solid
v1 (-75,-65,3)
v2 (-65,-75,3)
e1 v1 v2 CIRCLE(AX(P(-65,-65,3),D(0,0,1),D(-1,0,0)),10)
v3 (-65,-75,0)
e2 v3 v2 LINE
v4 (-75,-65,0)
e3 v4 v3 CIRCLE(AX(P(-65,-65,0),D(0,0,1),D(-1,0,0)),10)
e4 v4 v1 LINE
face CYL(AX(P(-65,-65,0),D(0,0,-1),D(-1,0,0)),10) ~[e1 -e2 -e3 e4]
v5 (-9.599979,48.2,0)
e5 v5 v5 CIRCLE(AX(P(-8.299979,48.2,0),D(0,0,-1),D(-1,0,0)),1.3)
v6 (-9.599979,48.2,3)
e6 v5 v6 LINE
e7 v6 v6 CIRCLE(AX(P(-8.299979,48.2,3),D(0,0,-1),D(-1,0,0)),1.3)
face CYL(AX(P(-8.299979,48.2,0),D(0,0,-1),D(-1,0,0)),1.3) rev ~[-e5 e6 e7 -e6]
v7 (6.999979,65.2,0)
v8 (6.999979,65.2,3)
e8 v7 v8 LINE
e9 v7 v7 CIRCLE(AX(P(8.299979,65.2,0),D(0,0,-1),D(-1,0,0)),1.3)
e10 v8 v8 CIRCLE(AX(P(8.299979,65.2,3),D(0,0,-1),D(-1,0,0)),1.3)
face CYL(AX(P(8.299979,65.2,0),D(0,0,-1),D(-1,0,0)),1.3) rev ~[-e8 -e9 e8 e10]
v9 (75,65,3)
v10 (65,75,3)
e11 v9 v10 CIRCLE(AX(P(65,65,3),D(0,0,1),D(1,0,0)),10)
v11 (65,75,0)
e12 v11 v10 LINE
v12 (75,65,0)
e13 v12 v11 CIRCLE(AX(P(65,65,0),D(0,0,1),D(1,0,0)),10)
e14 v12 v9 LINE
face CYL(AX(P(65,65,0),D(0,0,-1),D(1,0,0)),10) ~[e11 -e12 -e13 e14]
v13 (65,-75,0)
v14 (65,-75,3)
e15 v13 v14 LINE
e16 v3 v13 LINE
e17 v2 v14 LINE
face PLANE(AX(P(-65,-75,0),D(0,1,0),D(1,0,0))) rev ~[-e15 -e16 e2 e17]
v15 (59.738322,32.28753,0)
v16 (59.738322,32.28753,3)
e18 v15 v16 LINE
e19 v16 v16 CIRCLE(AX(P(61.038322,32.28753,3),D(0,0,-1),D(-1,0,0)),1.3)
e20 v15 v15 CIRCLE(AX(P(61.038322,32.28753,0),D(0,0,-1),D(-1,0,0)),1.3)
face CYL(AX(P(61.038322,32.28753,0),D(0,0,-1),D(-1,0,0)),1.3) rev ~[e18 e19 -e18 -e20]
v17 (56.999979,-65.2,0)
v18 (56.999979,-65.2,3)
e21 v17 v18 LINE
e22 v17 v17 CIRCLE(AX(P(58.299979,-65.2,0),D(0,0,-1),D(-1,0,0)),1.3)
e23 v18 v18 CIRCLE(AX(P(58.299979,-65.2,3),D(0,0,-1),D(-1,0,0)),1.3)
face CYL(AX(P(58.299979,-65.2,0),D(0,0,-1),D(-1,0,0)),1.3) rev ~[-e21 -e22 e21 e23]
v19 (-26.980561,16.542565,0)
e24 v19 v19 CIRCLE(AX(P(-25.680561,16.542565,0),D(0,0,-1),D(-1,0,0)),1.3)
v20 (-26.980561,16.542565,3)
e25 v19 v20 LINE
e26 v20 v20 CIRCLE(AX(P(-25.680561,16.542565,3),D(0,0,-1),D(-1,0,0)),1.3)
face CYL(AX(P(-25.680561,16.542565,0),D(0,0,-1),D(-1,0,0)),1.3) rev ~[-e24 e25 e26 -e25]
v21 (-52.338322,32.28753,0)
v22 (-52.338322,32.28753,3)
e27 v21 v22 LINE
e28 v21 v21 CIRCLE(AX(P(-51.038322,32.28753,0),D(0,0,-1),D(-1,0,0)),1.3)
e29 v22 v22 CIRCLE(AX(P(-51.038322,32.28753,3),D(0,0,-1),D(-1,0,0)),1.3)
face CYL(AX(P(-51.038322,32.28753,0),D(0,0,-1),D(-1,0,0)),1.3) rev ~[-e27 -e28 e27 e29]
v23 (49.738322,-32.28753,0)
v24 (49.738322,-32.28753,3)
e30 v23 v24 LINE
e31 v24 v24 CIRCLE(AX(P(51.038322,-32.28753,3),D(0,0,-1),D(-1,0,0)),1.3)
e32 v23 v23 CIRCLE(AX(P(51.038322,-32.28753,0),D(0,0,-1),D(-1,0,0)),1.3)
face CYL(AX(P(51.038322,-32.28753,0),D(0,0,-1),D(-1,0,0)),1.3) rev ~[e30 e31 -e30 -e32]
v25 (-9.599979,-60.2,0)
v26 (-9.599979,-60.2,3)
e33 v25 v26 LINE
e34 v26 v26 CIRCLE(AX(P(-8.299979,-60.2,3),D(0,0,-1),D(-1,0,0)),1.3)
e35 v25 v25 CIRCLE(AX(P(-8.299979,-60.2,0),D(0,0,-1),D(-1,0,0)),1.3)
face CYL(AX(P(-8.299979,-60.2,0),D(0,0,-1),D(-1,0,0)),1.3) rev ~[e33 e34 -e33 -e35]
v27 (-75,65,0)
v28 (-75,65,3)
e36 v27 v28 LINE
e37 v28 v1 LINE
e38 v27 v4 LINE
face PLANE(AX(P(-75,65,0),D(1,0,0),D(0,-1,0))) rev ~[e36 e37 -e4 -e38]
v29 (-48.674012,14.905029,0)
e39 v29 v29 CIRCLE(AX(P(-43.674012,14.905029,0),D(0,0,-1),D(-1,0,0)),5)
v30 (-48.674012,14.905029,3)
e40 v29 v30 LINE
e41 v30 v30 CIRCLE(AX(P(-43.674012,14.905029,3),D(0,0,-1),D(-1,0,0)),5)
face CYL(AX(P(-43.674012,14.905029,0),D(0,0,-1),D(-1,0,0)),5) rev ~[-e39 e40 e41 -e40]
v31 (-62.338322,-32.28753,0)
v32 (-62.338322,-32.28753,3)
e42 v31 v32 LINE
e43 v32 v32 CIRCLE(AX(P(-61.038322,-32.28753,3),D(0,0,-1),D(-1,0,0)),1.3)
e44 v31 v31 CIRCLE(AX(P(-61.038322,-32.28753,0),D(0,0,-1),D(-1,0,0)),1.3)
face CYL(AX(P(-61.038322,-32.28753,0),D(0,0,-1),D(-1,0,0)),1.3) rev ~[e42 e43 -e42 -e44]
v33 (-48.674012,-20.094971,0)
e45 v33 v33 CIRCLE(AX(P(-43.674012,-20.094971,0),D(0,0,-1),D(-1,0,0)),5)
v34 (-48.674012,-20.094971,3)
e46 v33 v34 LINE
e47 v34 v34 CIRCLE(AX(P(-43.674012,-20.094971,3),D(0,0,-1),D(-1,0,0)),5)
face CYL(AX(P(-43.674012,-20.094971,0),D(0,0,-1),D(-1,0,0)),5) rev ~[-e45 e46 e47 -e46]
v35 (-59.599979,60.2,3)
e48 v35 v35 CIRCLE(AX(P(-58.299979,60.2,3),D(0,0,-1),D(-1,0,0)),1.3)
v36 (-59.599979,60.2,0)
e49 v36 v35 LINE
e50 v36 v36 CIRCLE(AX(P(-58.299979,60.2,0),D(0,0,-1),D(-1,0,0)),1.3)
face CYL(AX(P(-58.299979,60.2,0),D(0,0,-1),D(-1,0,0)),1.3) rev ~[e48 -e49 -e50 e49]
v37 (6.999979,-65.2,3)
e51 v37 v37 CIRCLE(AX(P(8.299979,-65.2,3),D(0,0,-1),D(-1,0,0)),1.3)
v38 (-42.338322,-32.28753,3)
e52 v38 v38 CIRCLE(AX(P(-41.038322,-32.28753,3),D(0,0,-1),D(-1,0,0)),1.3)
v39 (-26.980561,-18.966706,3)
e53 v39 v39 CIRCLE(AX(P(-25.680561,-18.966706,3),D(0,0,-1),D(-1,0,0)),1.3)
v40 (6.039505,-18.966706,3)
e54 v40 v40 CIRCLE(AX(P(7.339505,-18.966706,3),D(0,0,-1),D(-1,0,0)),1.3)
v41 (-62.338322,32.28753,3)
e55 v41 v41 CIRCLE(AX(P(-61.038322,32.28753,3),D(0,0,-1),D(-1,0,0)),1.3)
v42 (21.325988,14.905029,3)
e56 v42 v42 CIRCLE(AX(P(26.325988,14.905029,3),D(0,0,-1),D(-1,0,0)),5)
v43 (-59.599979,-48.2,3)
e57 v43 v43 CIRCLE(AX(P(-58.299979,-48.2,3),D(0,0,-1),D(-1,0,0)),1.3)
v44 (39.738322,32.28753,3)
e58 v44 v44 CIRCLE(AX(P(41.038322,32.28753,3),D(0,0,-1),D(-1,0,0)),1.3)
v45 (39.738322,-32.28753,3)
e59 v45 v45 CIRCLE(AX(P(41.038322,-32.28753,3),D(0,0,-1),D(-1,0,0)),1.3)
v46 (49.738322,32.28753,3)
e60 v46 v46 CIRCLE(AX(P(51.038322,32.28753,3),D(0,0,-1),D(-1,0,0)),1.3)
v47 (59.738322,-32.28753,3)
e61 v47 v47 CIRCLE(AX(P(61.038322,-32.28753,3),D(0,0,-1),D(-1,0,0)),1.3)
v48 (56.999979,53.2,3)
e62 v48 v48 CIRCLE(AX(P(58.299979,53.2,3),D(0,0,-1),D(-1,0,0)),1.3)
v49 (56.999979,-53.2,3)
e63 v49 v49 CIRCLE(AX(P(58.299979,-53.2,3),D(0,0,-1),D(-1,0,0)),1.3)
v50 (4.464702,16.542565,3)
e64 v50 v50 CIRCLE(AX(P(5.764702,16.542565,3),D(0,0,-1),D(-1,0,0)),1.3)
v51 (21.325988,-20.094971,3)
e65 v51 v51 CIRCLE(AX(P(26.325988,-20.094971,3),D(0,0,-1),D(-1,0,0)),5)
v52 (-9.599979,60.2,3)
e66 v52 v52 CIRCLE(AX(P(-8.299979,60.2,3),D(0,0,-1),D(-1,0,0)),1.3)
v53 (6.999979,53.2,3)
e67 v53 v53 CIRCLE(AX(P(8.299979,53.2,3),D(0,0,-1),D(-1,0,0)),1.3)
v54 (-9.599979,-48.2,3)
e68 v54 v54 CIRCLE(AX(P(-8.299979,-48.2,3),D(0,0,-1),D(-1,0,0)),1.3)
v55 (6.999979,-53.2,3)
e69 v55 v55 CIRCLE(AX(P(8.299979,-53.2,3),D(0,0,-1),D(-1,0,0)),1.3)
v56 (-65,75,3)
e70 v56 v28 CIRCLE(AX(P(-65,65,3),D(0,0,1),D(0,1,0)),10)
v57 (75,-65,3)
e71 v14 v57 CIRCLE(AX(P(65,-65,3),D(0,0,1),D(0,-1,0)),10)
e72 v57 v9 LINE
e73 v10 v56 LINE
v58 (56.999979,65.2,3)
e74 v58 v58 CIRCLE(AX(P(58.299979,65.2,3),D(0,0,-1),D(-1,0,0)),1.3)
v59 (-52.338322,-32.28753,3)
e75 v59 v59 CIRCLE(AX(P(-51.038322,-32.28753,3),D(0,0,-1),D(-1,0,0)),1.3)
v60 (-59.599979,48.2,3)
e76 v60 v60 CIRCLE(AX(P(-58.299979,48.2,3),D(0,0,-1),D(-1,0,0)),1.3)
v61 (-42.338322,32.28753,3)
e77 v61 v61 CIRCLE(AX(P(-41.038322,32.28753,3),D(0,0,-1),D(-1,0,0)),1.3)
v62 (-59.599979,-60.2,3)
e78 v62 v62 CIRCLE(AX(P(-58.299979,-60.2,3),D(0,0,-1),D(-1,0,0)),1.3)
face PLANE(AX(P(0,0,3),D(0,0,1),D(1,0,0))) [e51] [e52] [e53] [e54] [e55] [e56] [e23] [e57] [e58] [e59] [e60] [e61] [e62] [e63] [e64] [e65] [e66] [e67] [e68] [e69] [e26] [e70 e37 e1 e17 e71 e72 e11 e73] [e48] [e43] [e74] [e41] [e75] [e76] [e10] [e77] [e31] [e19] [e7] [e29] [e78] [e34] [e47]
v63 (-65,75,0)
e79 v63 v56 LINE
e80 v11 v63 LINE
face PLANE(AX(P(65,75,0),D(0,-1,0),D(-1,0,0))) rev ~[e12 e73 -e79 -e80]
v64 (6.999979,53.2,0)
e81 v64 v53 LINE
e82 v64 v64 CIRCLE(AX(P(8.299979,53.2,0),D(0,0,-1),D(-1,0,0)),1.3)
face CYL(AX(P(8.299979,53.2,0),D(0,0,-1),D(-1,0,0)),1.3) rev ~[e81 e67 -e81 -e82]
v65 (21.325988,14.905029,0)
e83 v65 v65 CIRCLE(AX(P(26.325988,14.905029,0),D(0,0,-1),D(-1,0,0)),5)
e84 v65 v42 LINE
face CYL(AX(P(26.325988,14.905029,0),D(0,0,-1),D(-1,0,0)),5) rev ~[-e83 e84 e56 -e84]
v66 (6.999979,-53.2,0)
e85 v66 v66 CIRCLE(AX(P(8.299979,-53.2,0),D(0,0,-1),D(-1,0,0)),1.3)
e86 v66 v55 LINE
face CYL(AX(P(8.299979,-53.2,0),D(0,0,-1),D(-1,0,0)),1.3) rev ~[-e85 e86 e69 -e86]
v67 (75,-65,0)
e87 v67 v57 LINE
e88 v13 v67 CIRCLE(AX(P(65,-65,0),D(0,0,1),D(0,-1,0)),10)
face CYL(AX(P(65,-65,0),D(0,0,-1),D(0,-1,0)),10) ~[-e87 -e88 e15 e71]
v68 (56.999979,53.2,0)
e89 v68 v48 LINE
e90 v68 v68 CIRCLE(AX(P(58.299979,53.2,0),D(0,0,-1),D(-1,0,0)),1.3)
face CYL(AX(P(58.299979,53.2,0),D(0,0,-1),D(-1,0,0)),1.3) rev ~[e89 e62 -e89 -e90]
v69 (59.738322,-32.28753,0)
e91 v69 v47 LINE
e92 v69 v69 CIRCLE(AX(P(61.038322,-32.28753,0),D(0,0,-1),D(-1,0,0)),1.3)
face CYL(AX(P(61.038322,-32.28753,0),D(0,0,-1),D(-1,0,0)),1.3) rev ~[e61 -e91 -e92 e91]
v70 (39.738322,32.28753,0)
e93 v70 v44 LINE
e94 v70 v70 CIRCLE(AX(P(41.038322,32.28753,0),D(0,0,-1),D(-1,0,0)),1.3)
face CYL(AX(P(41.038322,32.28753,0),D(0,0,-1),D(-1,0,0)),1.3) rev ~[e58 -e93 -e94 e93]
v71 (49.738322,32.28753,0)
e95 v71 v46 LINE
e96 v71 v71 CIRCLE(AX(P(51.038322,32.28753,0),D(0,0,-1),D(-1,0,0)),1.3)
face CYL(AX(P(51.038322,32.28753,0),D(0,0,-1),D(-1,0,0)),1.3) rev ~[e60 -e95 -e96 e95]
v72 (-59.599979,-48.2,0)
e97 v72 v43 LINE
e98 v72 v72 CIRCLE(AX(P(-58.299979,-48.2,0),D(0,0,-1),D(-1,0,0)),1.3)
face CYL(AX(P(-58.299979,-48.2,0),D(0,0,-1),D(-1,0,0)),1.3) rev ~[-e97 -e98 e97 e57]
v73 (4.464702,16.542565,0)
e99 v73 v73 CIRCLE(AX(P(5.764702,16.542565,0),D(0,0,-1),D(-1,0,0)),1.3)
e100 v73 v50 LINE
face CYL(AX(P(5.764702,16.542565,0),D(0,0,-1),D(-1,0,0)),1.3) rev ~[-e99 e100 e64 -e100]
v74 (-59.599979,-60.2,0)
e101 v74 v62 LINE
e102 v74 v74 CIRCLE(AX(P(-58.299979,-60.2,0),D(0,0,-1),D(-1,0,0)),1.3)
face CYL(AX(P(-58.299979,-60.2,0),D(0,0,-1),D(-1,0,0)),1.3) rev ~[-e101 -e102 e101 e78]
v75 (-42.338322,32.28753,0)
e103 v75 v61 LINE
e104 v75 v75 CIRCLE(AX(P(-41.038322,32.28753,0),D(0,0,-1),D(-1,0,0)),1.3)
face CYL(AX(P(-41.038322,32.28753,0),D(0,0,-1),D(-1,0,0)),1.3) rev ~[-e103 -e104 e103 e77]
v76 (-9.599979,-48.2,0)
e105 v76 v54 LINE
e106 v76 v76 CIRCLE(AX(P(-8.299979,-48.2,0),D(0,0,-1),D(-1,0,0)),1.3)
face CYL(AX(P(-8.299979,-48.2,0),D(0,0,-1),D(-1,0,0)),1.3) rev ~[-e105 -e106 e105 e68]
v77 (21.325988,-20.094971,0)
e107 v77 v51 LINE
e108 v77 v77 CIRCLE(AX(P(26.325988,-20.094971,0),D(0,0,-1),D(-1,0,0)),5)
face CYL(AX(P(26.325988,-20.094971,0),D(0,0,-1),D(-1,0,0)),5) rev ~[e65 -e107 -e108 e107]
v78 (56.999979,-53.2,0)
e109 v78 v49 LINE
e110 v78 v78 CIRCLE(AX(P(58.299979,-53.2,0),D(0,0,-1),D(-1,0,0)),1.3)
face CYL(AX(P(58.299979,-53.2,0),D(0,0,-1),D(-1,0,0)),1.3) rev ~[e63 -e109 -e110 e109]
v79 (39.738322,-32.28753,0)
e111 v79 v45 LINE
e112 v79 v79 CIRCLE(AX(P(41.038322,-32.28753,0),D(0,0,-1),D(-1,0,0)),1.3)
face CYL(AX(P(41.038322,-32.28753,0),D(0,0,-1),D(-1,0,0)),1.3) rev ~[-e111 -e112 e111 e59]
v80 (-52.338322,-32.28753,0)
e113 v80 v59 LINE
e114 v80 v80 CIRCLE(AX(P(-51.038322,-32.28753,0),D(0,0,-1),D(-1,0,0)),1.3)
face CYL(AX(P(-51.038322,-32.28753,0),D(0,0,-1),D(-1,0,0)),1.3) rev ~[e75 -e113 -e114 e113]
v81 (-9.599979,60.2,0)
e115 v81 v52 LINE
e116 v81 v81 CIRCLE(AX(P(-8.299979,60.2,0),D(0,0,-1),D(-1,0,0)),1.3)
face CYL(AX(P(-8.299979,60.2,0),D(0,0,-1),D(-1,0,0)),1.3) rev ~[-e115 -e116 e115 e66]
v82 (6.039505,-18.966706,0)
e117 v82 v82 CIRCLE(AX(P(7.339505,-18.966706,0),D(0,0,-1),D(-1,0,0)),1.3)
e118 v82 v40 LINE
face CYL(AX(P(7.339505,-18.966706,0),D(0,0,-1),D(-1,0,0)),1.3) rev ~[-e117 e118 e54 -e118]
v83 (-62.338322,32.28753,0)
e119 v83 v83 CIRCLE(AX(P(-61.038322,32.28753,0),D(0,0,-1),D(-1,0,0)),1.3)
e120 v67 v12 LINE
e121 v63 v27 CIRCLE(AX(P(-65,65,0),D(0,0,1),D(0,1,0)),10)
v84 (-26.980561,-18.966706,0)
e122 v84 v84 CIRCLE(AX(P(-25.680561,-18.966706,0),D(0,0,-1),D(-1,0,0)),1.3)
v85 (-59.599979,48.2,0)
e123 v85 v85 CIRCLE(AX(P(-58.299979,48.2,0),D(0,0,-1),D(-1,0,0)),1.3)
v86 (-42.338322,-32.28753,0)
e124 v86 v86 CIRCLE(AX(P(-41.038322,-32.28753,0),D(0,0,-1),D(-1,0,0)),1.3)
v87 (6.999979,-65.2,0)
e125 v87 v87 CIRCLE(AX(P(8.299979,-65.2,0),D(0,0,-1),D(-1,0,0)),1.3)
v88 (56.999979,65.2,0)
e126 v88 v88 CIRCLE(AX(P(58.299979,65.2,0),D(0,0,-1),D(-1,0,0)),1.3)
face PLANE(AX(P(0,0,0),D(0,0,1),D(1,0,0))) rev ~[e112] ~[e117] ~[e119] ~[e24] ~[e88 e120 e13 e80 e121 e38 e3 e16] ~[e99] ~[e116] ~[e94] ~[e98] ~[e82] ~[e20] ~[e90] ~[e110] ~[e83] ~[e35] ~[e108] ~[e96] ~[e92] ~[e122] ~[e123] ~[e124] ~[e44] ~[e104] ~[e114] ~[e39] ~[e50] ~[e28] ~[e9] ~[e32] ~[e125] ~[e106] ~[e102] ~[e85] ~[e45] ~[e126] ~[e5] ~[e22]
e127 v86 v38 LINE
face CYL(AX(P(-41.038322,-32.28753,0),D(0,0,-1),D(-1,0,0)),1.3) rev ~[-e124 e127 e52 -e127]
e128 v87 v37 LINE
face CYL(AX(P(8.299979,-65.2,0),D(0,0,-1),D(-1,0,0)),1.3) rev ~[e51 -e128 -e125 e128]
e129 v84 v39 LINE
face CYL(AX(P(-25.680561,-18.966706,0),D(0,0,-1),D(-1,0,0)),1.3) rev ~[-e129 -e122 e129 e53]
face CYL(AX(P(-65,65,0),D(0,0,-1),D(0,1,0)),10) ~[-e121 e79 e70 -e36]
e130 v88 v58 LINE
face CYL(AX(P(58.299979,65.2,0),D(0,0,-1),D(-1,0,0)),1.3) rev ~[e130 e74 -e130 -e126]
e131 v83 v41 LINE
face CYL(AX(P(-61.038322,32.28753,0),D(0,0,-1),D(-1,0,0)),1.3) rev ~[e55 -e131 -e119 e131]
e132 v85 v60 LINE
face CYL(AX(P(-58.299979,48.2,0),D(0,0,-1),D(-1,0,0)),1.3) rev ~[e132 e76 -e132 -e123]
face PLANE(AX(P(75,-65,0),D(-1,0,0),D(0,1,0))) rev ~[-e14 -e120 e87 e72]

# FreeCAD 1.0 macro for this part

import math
import FreeCAD as App
import Part
import Sketcher

V = App.Vector

doc = App.newDocument("Part")
body = doc.addObject("PartDesign::Body", "Body")

sketch1 = body.newObject("Sketcher::SketchObject", "Sketch")
sketch1.AttachmentSupport = (doc.getObject("XY_Plane"), [""])
sketch1.MapMode = "FlatFace"
sketch1.addGeometry([
    Part.LineSegment(V(-65, -75, 0), V(65, -75, 0)),
    Part.ArcOfCircle(Part.Circle(V(65, -65, 0), V(0, 0, 1), 10), math.radians(-90), math.radians(0)),
    Part.LineSegment(V(75, -65, 0), V(75, 65, 0)),
    Part.ArcOfCircle(Part.Circle(V(65, 65, 0), V(0, 0, 1), 10), math.radians(0), math.radians(90)),
    Part.LineSegment(V(65, 75, 0), V(-65, 75, 0)),
    Part.ArcOfCircle(Part.Circle(V(-65, 65, 0), V(0, 0, 1), 10), math.radians(90), math.radians(180)),
    Part.LineSegment(V(-75, 65, 0), V(-75, -65, 0)),
    Part.ArcOfCircle(Part.Circle(V(-65, -65, 0), V(0, 0, 1), 10), math.radians(180), math.radians(270)),
], False)
sketch1.addConstraint([
    Sketcher.Constraint("Tangent", 0, 2, 1, 1),
    Sketcher.Constraint("Tangent", 1, 2, 2, 1),
    Sketcher.Constraint("Tangent", 2, 2, 3, 1),
    Sketcher.Constraint("Tangent", 3, 2, 4, 1),
    Sketcher.Constraint("Tangent", 4, 2, 5, 1),
    Sketcher.Constraint("Tangent", 5, 2, 6, 1),
    Sketcher.Constraint("Tangent", 6, 2, 7, 1),
    Sketcher.Constraint("Tangent", 7, 2, 0, 1),
    Sketcher.Constraint("Horizontal", 0),
    Sketcher.Constraint("Vertical", 2),
    Sketcher.Constraint("Horizontal", 4),
    Sketcher.Constraint("Vertical", 6),
    Sketcher.Constraint("Equal", 1, 3),
    Sketcher.Constraint("Equal", 3, 5),
    Sketcher.Constraint("Equal", 5, 7),
    Sketcher.Constraint("Symmetric", 1, 3, 5, 3, -1, 1),
    Sketcher.Constraint("Equal", 4, 2),
    Sketcher.Constraint("Radius", 1, 10.0),
    Sketcher.Constraint("DistanceX", 0, 1, 0, 2, 130.0),
])
pad1 = body.newObject("PartDesign::Pad", "Pad")
pad1.Profile = sketch1
pad1.Length = 3

sketch2 = body.newObject("Sketcher::SketchObject", "Sketch001")
sketch2.AttachmentSupport = (doc.getObject("XY_Plane"), [""])
sketch2.MapMode = "FlatFace"
sketch2.addGeometry([
    Part.Circle(V(-8.299979, 60.2, 0), V(0, 0, 1), 1.3),
    Part.Circle(V(-8.299979, 48.2, 0), V(0, 0, 1), 1.3),
    Part.Circle(V(-8.299979, -48.2, 0), V(0, 0, 1), 1.3),
    Part.Circle(V(-8.299979, -60.2, 0), V(0, 0, 1), 1.3),
    Part.Circle(V(-58.299979, -48.2, 0), V(0, 0, 1), 1.3),
    Part.Circle(V(-58.299979, -60.2, 0), V(0, 0, 1), 1.3),
    Part.Circle(V(-58.299979, 60.2, 0), V(0, 0, 1), 1.3),
    Part.Circle(V(-58.299979, 48.2, 0), V(0, 0, 1), 1.3),
    Part.Circle(V(58.299979, 65.2, 0), V(0, 0, 1), 1.3),
    Part.Circle(V(58.299979, 53.2, 0), V(0, 0, 1), 1.3),
    Part.Circle(V(8.299979, 53.2, 0), V(0, 0, 1), 1.3),
    Part.Circle(V(8.299979, 65.2, 0), V(0, 0, 1), 1.3),
    Part.Circle(V(8.299979, -65.2, 0), V(0, 0, 1), 1.3),
    Part.Circle(V(8.299979, -53.2, 0), V(0, 0, 1), 1.3),
    Part.Circle(V(58.299979, -53.2, 0), V(0, 0, 1), 1.3),
    Part.Circle(V(58.299979, -65.2, 0), V(0, 0, 1), 1.3),
], False)
sketch2.addConstraint([
    Sketcher.Constraint("Equal", 0, 1),
    Sketcher.Constraint("Equal", 1, 2),
    Sketcher.Constraint("Equal", 2, 3),
    Sketcher.Constraint("Equal", 3, 4),
    Sketcher.Constraint("Equal", 4, 5),
    Sketcher.Constraint("Equal", 5, 6),
    Sketcher.Constraint("Equal", 6, 7),
    Sketcher.Constraint("Equal", 7, 8),
    Sketcher.Constraint("Equal", 8, 9),
    Sketcher.Constraint("Equal", 9, 10),
    Sketcher.Constraint("Equal", 10, 11),
    Sketcher.Constraint("Equal", 11, 12),
    Sketcher.Constraint("Equal", 12, 13),
    Sketcher.Constraint("Equal", 13, 14),
    Sketcher.Constraint("Equal", 14, 15),
    Sketcher.Constraint("Symmetric", 1, 3, 2, 3, -1),
    Sketcher.Constraint("Symmetric", 0, 3, 3, 3, -1),
    Sketcher.Constraint("Symmetric", 5, 3, 6, 3, -1),
    Sketcher.Constraint("Symmetric", 4, 3, 7, 3, -1),
    Sketcher.Constraint("Symmetric", 11, 3, 12, 3, -1),
    Sketcher.Constraint("Symmetric", 10, 3, 13, 3, -1),
    Sketcher.Constraint("Symmetric", 9, 3, 14, 3, -1),
    Sketcher.Constraint("Symmetric", 8, 3, 15, 3, -1),
    Sketcher.Constraint("Horizontal", 2, 3, 4, 3),
    Sketcher.Constraint("Horizontal", 3, 3, 5, 3),
    Sketcher.Constraint("Horizontal", 9, 3, 10, 3),
    Sketcher.Constraint("Horizontal", 8, 3, 11, 3),
    Sketcher.Constraint("Vertical", 0, 3, 1, 3),
    Sketcher.Constraint("Vertical", 4, 3, 5, 3),
    Sketcher.Constraint("Vertical", 8, 3, 9, 3),
    Sketcher.Constraint("Vertical", 10, 3, 11, 3),
    Sketcher.Constraint("Diameter", 0, 2.6),
    Sketcher.Constraint("DistanceY", 1, 3, 0, 3, 12.0),
    Sketcher.Constraint("DistanceX", 4, 3, 2, 3, 50.0),
    Sketcher.Constraint("DistanceY", 0, 3, 8, 3, 5.0),
    Sketcher.Constraint("DistanceY", 9, 3, 8, 3, 12.0),
    Sketcher.Constraint("DistanceX", 10, 3, 9, 3, 50.0),
    Sketcher.Constraint("DistanceY", -1, 1, 0, 3, 60.2),
    Sketcher.Constraint("DistanceX", 0, 3, -1, 1, 8.299979),
    Sketcher.Constraint("DistanceX", -1, 1, 8, 3, 58.299979),
])
pocket1 = body.newObject("PartDesign::Pocket", "Pocket")
pocket1.Profile = sketch2
pocket1.Length = 3
pocket1.Reversed = True

sketch3 = body.newObject("Sketcher::SketchObject", "Sketch002")
sketch3.AttachmentSupport = (doc.getObject("XY_Plane"), [""])
sketch3.MapMode = "FlatFace"
sketch3.addGeometry(Part.Circle(V(5.764702, 16.542565, 0), V(0, 0, 1), 1.3), False)
sketch3.addConstraint([
    Sketcher.Constraint("Diameter", 0, 2.6),
    Sketcher.Constraint("DistanceX", -1, 1, 0, 3, 5.764702),
    Sketcher.Constraint("DistanceY", -1, 1, 0, 3, 16.542565),
])
pocket2 = body.newObject("PartDesign::Pocket", "Pocket001")
pocket2.Profile = sketch3
pocket2.Type = "UpToFirst"
pocket2.Reversed = True

sketch4 = body.newObject("Sketcher::SketchObject", "Sketch003")
sketch4.AttachmentSupport = (doc.getObject("XY_Plane"), [""])
sketch4.MapMode = "FlatFace"
sketch4.addGeometry(Part.Circle(V(-25.680561, 16.542565, 0), V(0, 0, 1), 1.3), False)
sketch4.addConstraint([
    Sketcher.Constraint("Diameter", 0, 2.6),
    Sketcher.Constraint("DistanceX", 0, 3, -1, 1, 25.680561),
    Sketcher.Constraint("DistanceY", -1, 1, 0, 3, 16.542565),
])
pocket3 = body.newObject("PartDesign::Pocket", "Pocket002")
pocket3.Profile = sketch4
pocket3.Type = "UpToFirst"
pocket3.Reversed = True

sketch5 = body.newObject("Sketcher::SketchObject", "Sketch004")
sketch5.AttachmentSupport = (doc.getObject("XY_Plane"), [""])
sketch5.MapMode = "FlatFace"
sketch5.addGeometry(Part.Circle(V(-25.680561, -18.966706, 0), V(0, 0, 1), 1.3), False)
sketch5.addConstraint([
    Sketcher.Constraint("Diameter", 0, 2.6),
    Sketcher.Constraint("DistanceX", 0, 3, -1, 1, 25.680561),
    Sketcher.Constraint("DistanceY", 0, 3, -1, 1, 18.966706),
])
pocket4 = body.newObject("PartDesign::Pocket", "Pocket003")
pocket4.Profile = sketch5
pocket4.Type = "UpToFirst"
pocket4.Reversed = True

sketch6 = body.newObject("Sketcher::SketchObject", "Sketch005")
sketch6.AttachmentSupport = (doc.getObject("XY_Plane"), [""])
sketch6.MapMode = "FlatFace"
sketch6.addGeometry(Part.Circle(V(7.339505, -18.966706, 0), V(0, 0, 1), 1.3), False)
sketch6.addConstraint([
    Sketcher.Constraint("Diameter", 0, 2.6),
    Sketcher.Constraint("DistanceX", -1, 1, 0, 3, 7.339505),
    Sketcher.Constraint("DistanceY", 0, 3, -1, 1, 18.966706),
])
pocket5 = body.newObject("PartDesign::Pocket", "Pocket004")
pocket5.Profile = sketch6
pocket5.Type = "UpToFirst"
pocket5.Reversed = True

sketch7 = body.newObject("Sketcher::SketchObject", "Sketch006")
sketch7.AttachmentSupport = (doc.getObject("XY_Plane"), [""])
sketch7.MapMode = "FlatFace"
sketch7.addGeometry(Part.Circle(V(-43.674012, 14.905029, 0), V(0, 0, 1), 5), False)
sketch7.addConstraint([
    Sketcher.Constraint("Diameter", 0, 10.0),
    Sketcher.Constraint("DistanceX", 0, 3, -1, 1, 43.674012),
    Sketcher.Constraint("DistanceY", -1, 1, 0, 3, 14.905029),
])
pocket6 = body.newObject("PartDesign::Pocket", "Pocket005")
pocket6.Profile = sketch7
pocket6.Type = "UpToFirst"
pocket6.Reversed = True

sketch8 = body.newObject("Sketcher::SketchObject", "Sketch007")
sketch8.AttachmentSupport = (doc.getObject("XY_Plane"), [""])
sketch8.MapMode = "FlatFace"
sketch8.addGeometry(Part.Circle(V(-43.674012, -20.094971, 0), V(0, 0, 1), 5), False)
sketch8.addConstraint([
    Sketcher.Constraint("Diameter", 0, 10.0),
    Sketcher.Constraint("DistanceX", 0, 3, -1, 1, 43.674012),
    Sketcher.Constraint("DistanceY", 0, 3, -1, 1, 20.094971),
])
pocket7 = body.newObject("PartDesign::Pocket", "Pocket006")
pocket7.Profile = sketch8
pocket7.Type = "UpToFirst"
pocket7.Reversed = True

sketch9 = body.newObject("Sketcher::SketchObject", "Sketch008")
sketch9.AttachmentSupport = (doc.getObject("XY_Plane"), [""])
sketch9.MapMode = "FlatFace"
sketch9.addGeometry(Part.Circle(V(26.325988, 14.905029, 0), V(0, 0, 1), 5), False)
sketch9.addConstraint([
    Sketcher.Constraint("Diameter", 0, 10.0),
    Sketcher.Constraint("DistanceX", -1, 1, 0, 3, 26.325988),
    Sketcher.Constraint("DistanceY", -1, 1, 0, 3, 14.905029),
])
pocket8 = body.newObject("PartDesign::Pocket", "Pocket007")
pocket8.Profile = sketch9
pocket8.Type = "UpToFirst"
pocket8.Reversed = True

sketch10 = body.newObject("Sketcher::SketchObject", "Sketch009")
sketch10.AttachmentSupport = (doc.getObject("XY_Plane"), [""])
sketch10.MapMode = "FlatFace"
sketch10.addGeometry(Part.Circle(V(26.325988, -20.094971, 0), V(0, 0, 1), 5), False)
sketch10.addConstraint([
    Sketcher.Constraint("Diameter", 0, 10.0),
    Sketcher.Constraint("DistanceX", -1, 1, 0, 3, 26.325988),
    Sketcher.Constraint("DistanceY", 0, 3, -1, 1, 20.094971),
])
pocket9 = body.newObject("PartDesign::Pocket", "Pocket008")
pocket9.Profile = sketch10
pocket9.Type = "UpToFirst"
pocket9.Reversed = True

sketch11 = body.newObject("Sketcher::SketchObject", "Sketch010")
sketch11.AttachmentSupport = (doc.getObject("XY_Plane"), [""])
sketch11.MapMode = "FlatFace"
sketch11.addGeometry(Part.Circle(V(51.038322, 32.28753, 0), V(0, 0, 1), 1.3), False)
sketch11.addConstraint([
    Sketcher.Constraint("Diameter", 0, 2.6),
    Sketcher.Constraint("DistanceX", -1, 1, 0, 3, 51.038322),
    Sketcher.Constraint("DistanceY", -1, 1, 0, 3, 32.28753),
])
pocket10 = body.newObject("PartDesign::Pocket", "Pocket009")
pocket10.Profile = sketch11
pocket10.Type = "UpToFirst"
pocket10.Reversed = True

sketch12 = body.newObject("Sketcher::SketchObject", "Sketch011")
sketch12.AttachmentSupport = (doc.getObject("XY_Plane"), [""])
sketch12.MapMode = "FlatFace"
sketch12.addGeometry(Part.Circle(V(-51.038322, 32.28753, 0), V(0, 0, 1), 1.3), False)
sketch12.addConstraint([
    Sketcher.Constraint("Diameter", 0, 2.6),
    Sketcher.Constraint("DistanceX", 0, 3, -1, 1, 51.038322),
    Sketcher.Constraint("DistanceY", -1, 1, 0, 3, 32.28753),
])
pocket11 = body.newObject("PartDesign::Pocket", "Pocket010")
pocket11.Profile = sketch12
pocket11.Type = "UpToFirst"
pocket11.Reversed = True

sketch13 = body.newObject("Sketcher::SketchObject", "Sketch012")
sketch13.AttachmentSupport = (doc.getObject("XY_Plane"), [""])
sketch13.MapMode = "FlatFace"
sketch13.addGeometry(Part.Circle(V(-51.038322, -32.28753, 0), V(0, 0, 1), 1.3), False)
sketch13.addConstraint([
    Sketcher.Constraint("Diameter", 0, 2.6),
    Sketcher.Constraint("DistanceX", 0, 3, -1, 1, 51.038322),
    Sketcher.Constraint("DistanceY", 0, 3, -1, 1, 32.28753),
])
pocket12 = body.newObject("PartDesign::Pocket", "Pocket011")
pocket12.Profile = sketch13
pocket12.Type = "UpToFirst"
pocket12.Reversed = True

sketch14 = body.newObject("Sketcher::SketchObject", "Sketch013")
sketch14.AttachmentSupport = (doc.getObject("XY_Plane"), [""])
sketch14.MapMode = "FlatFace"
sketch14.addGeometry(Part.Circle(V(51.038322, -32.28753, 0), V(0, 0, 1), 1.3), False)
sketch14.addConstraint([
    Sketcher.Constraint("Diameter", 0, 2.6),
    Sketcher.Constraint("DistanceX", -1, 1, 0, 3, 51.038322),
    Sketcher.Constraint("DistanceY", 0, 3, -1, 1, 32.28753),
])
pocket13 = body.newObject("PartDesign::Pocket", "Pocket012")
pocket13.Profile = sketch14
pocket13.Type = "UpToFirst"
pocket13.Reversed = True

sketch15 = body.newObject("Sketcher::SketchObject", "Sketch014")
sketch15.AttachmentSupport = (doc.getObject("XY_Plane"), [""])
sketch15.MapMode = "FlatFace"
sketch15.addGeometry(Part.Circle(V(41.038322, 32.28753, 0), V(0, 0, 1), 1.3), False)
sketch15.addConstraint([
    Sketcher.Constraint("Diameter", 0, 2.6),
    Sketcher.Constraint("DistanceX", -1, 1, 0, 3, 41.038322),
    Sketcher.Constraint("DistanceY", -1, 1, 0, 3, 32.28753),
])
pocket14 = body.newObject("PartDesign::Pocket", "Pocket013")
pocket14.Profile = sketch15
pocket14.Type = "UpToFirst"
pocket14.Reversed = True

sketch16 = body.newObject("Sketcher::SketchObject", "Sketch015")
sketch16.AttachmentSupport = (doc.getObject("XY_Plane"), [""])
sketch16.MapMode = "FlatFace"
sketch16.addGeometry(Part.Circle(V(-61.038322, 32.28753, 0), V(0, 0, 1), 1.3), False)
sketch16.addConstraint([
    Sketcher.Constraint("Diameter", 0, 2.6),
    Sketcher.Constraint("DistanceX", 0, 3, -1, 1, 61.038322),
    Sketcher.Constraint("DistanceY", -1, 1, 0, 3, 32.28753),
])
pocket15 = body.newObject("PartDesign::Pocket", "Pocket014")
pocket15.Profile = sketch16
pocket15.Type = "UpToFirst"
pocket15.Reversed = True

sketch17 = body.newObject("Sketcher::SketchObject", "Sketch016")
sketch17.AttachmentSupport = (doc.getObject("XY_Plane"), [""])
sketch17.MapMode = "FlatFace"
sketch17.addGeometry(Part.Circle(V(-61.038322, -32.28753, 0), V(0, 0, 1), 1.3), False)
sketch17.addConstraint([
    Sketcher.Constraint("Diameter", 0, 2.6),
    Sketcher.Constraint("DistanceX", 0, 3, -1, 1, 61.038322),
    Sketcher.Constraint("DistanceY", 0, 3, -1, 1, 32.28753),
])
pocket16 = body.newObject("PartDesign::Pocket", "Pocket015")
pocket16.Profile = sketch17
pocket16.Type = "UpToFirst"
pocket16.Reversed = True

sketch18 = body.newObject("Sketcher::SketchObject", "Sketch017")
sketch18.AttachmentSupport = (doc.getObject("XY_Plane"), [""])
sketch18.MapMode = "FlatFace"
sketch18.addGeometry(Part.Circle(V(41.038322, -32.28753, 0), V(0, 0, 1), 1.3), False)
sketch18.addConstraint([
    Sketcher.Constraint("Diameter", 0, 2.6),
    Sketcher.Constraint("DistanceX", -1, 1, 0, 3, 41.038322),
    Sketcher.Constraint("DistanceY", 0, 3, -1, 1, 32.28753),
])
pocket17 = body.newObject("PartDesign::Pocket", "Pocket016")
pocket17.Profile = sketch18
pocket17.Type = "UpToFirst"
pocket17.Reversed = True

sketch19 = body.newObject("Sketcher::SketchObject", "Sketch018")
sketch19.AttachmentSupport = (doc.getObject("XY_Plane"), [""])
sketch19.MapMode = "FlatFace"
sketch19.addGeometry(Part.Circle(V(61.038322, -32.28753, 0), V(0, 0, 1), 1.3), False)
sketch19.addConstraint([
    Sketcher.Constraint("Diameter", 0, 2.6),
    Sketcher.Constraint("DistanceX", -1, 1, 0, 3, 61.038322),
    Sketcher.Constraint("DistanceY", 0, 3, -1, 1, 32.28753),
])
pocket18 = body.newObject("PartDesign::Pocket", "Pocket017")
pocket18.Profile = sketch19
pocket18.Type = "UpToFirst"
pocket18.Reversed = True

sketch20 = body.newObject("Sketcher::SketchObject", "Sketch019")
sketch20.AttachmentSupport = (doc.getObject("XY_Plane"), [""])
sketch20.MapMode = "FlatFace"
sketch20.addGeometry(Part.Circle(V(-41.038322, -32.28753, 0), V(0, 0, 1), 1.3), False)
sketch20.addConstraint([
    Sketcher.Constraint("Diameter", 0, 2.6),
    Sketcher.Constraint("DistanceX", 0, 3, -1, 1, 41.038322),
    Sketcher.Constraint("DistanceY", 0, 3, -1, 1, 32.28753),
])
pocket19 = body.newObject("PartDesign::Pocket", "Pocket018")
pocket19.Profile = sketch20
pocket19.Type = "UpToFirst"
pocket19.Reversed = True

sketch21 = body.newObject("Sketcher::SketchObject", "Sketch020")
sketch21.AttachmentSupport = (doc.getObject("XY_Plane"), [""])
sketch21.MapMode = "FlatFace"
sketch21.addGeometry(Part.Circle(V(-41.038322, 32.28753, 0), V(0, 0, 1), 1.3), False)
sketch21.addConstraint([
    Sketcher.Constraint("Diameter", 0, 2.6),
    Sketcher.Constraint("DistanceX", 0, 3, -1, 1, 41.038322),
    Sketcher.Constraint("DistanceY", -1, 1, 0, 3, 32.28753),
])
pocket20 = body.newObject("PartDesign::Pocket", "Pocket019")
pocket20.Profile = sketch21
pocket20.Type = "UpToFirst"
pocket20.Reversed = True

sketch22 = body.newObject("Sketcher::SketchObject", "Sketch021")
sketch22.AttachmentSupport = (doc.getObject("XY_Plane"), [""])
sketch22.MapMode = "FlatFace"
sketch22.addGeometry(Part.Circle(V(61.038322, 32.28753, 0), V(0, 0, 1), 1.3), False)
sketch22.addConstraint([
    Sketcher.Constraint("Diameter", 0, 2.6),
    Sketcher.Constraint("DistanceX", -1, 1, 0, 3, 61.038322),
    Sketcher.Constraint("DistanceY", -1, 1, 0, 3, 32.28753),
])
pocket21 = body.newObject("PartDesign::Pocket", "Pocket020")
pocket21.Profile = sketch22
pocket21.Type = "UpToFirst"
pocket21.Reversed = True

doc.recompute()
